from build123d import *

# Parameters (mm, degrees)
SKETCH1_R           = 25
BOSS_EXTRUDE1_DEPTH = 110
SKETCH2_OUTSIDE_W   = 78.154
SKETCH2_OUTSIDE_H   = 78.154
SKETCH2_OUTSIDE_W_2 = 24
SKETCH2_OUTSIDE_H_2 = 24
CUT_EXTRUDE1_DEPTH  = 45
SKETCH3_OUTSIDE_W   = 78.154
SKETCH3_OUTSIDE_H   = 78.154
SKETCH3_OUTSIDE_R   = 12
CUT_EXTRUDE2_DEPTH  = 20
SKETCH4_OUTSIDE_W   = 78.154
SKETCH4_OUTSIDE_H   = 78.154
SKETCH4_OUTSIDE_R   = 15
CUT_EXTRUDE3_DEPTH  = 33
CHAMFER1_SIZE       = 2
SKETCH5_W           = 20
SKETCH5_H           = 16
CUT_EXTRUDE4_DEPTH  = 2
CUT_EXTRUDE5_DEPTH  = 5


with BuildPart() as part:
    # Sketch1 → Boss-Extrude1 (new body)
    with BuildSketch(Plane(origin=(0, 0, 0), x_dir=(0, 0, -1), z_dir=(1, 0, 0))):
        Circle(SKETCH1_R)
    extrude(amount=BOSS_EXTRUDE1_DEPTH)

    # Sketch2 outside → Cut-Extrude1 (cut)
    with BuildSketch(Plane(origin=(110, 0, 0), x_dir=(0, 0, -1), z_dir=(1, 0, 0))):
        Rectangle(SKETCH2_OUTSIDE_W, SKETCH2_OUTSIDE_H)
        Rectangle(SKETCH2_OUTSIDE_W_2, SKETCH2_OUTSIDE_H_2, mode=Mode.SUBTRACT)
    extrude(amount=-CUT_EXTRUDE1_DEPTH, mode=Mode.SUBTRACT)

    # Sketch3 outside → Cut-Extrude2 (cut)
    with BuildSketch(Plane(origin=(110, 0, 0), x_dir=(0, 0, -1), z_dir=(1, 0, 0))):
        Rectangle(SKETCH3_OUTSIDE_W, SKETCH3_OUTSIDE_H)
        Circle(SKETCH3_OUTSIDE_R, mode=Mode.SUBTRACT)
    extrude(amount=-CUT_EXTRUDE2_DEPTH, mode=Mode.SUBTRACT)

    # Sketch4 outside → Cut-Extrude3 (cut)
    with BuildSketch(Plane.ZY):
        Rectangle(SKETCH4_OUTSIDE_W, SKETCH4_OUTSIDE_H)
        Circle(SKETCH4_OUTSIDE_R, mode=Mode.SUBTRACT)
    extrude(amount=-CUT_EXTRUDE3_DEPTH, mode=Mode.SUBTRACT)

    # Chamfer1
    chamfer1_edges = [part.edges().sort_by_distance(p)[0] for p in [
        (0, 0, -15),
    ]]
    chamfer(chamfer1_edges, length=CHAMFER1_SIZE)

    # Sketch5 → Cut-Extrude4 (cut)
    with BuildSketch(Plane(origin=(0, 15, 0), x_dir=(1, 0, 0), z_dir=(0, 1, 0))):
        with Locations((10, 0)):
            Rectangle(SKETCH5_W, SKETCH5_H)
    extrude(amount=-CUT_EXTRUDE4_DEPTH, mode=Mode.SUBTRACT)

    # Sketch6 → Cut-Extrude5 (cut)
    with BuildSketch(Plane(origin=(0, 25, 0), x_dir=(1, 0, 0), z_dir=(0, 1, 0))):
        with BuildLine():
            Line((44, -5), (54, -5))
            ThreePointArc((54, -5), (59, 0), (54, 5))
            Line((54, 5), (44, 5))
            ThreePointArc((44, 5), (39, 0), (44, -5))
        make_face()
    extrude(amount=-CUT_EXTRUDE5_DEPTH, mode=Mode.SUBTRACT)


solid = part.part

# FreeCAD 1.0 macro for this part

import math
import FreeCAD as App
import Part
import Sketcher
from FreeCAD import Vector
Q = App.Units.Quantity


def edges_at(feature, points):
    """Names of the edges that pass closest to the given points."""
    edges = feature.Shape.Edges
    near = lambda p: min(range(len(edges)), key=lambda i: edges[i].distToShape(Part.Vertex(*p))[0])
    return sorted({f"Edge{near(p) + 1}" for p in points})

doc = App.newDocument("Part")
params = doc.addObject("Spreadsheet::Sheet", "Params")
for row, (alias, value) in enumerate([
    ("sketch1_diameter", "50 mm"),
    ("pad1_length", "110 mm"),
    ("sketch2_width", "24 mm"),
    ("pocket1_length", "45 mm"),
    ("sketch3_diameter", "24 mm"),
    ("pocket2_length", "20 mm"),
    ("sketch4_diameter", "30 mm"),
    ("pocket3_length", "33 mm"),
    ("chamfer_size", "2 mm"),
    ("sketch5_width", "20 mm"),
    ("sketch5_height", "16 mm"),
    ("pocket4_length", "2 mm"),
    ("sketch6_radius", "5 mm"),
    ("sketch6_width", "10 mm"),
    ("pocket5_length", "5 mm"),
], start=1):
    params.set(f"A{row}", alias)
    params.set(f"B{row}", "=" + value)
    params.setAlias(f"B{row}", alias)

body = doc.addObject("PartDesign::Body", "Body")

sketch1 = body.newObject("Sketcher::SketchObject", "Sketch")
sketch1.AttachmentSupport = (doc.getObject("YZ_Plane"), [""])
sketch1.MapMode = "FlatFace"
sketch1.addGeometry(Part.Circle(Vector(0, 0, 0), Vector(0, 0, 1), 25), False)
sketch1.addConstraint(Sketcher.Constraint("Coincident", 0, 3, -1, 1))
sketch1.addConstraint(Sketcher.Constraint("Diameter", 0, Q("50 mm")))
sketch1.setExpression("Constraints[1]", "Params.sketch1_diameter")
pad1 = body.newObject("PartDesign::Pad", "Pad")
pad1.Profile = sketch1
pad1.setExpression("Length", "Params.pad1_length")

sketch2 = body.newObject("Sketcher::SketchObject", "Sketch001")
sketch2.AttachmentSupport = (doc.getObject("YZ_Plane"), [""])
sketch2.MapMode = "FlatFace"
sketch2.AttachmentOffset = App.Placement(Vector(0, 0, 110), App.Rotation())
sketch2.addGeometry(Part.LineSegment(Vector(39, 39, 0), Vector(-39, 39, 0)), False)
sketch2.addGeometry(Part.LineSegment(Vector(-39, 39, 0), Vector(-39, -39, 0)), False)
sketch2.addGeometry(Part.LineSegment(Vector(-39, -39, 0), Vector(39, -39, 0)), False)
sketch2.addGeometry(Part.LineSegment(Vector(39, -39, 0), Vector(39, 39, 0)), False)
sketch2.addGeometry(Part.LineSegment(Vector(-12, -12, 0), Vector(-12, 12, 0)), False)
sketch2.addGeometry(Part.LineSegment(Vector(-12, 12, 0), Vector(12, 12, 0)), False)
sketch2.addGeometry(Part.LineSegment(Vector(12, 12, 0), Vector(12, -12, 0)), False)
sketch2.addGeometry(Part.LineSegment(Vector(12, -12, 0), Vector(-12, -12, 0)), False)
sketch2.addConstraint(Sketcher.Constraint("Coincident", 0, 2, 1, 1))
sketch2.addConstraint(Sketcher.Constraint("Coincident", 1, 2, 2, 1))
sketch2.addConstraint(Sketcher.Constraint("Coincident", 2, 2, 3, 1))
sketch2.addConstraint(Sketcher.Constraint("Coincident", 3, 2, 0, 1))
sketch2.addConstraint(Sketcher.Constraint("Coincident", 4, 2, 5, 1))
sketch2.addConstraint(Sketcher.Constraint("Coincident", 5, 2, 6, 1))
sketch2.addConstraint(Sketcher.Constraint("Coincident", 6, 2, 7, 1))
sketch2.addConstraint(Sketcher.Constraint("Coincident", 7, 2, 4, 1))
sketch2.addConstraint(Sketcher.Constraint("Horizontal", 0))
sketch2.addConstraint(Sketcher.Constraint("Vertical", 1))
sketch2.addConstraint(Sketcher.Constraint("Horizontal", 2))
sketch2.addConstraint(Sketcher.Constraint("Vertical", 3))
sketch2.addConstraint(Sketcher.Constraint("Vertical", 4))
sketch2.addConstraint(Sketcher.Constraint("Horizontal", 5))
sketch2.addConstraint(Sketcher.Constraint("Vertical", 6))
sketch2.addConstraint(Sketcher.Constraint("Horizontal", 7))
sketch2.addConstraint(Sketcher.Constraint("Symmetric", 0, 2, 2, 2, -1, 1))
sketch2.addConstraint(Sketcher.Constraint("Symmetric", 4, 2, 6, 2, -1, 1))
sketch2.addConstraint(Sketcher.Constraint("Equal", 2, 1))
sketch2.addConstraint(Sketcher.Constraint("Equal", 7, 4))
sketch2.addConstraint(Sketcher.Constraint("DistanceX", 5, 1, 5, 2, Q("24 mm")))
sketch2.addConstraint(Sketcher.Constraint("DistanceX", 0, 2, 0, 1, Q("78.154 mm")))
sketch2.setExpression("Constraints[20]", "Params.sketch2_width")
pocket1 = body.newObject("PartDesign::Pocket", "Pocket")
pocket1.Profile = sketch2
pocket1.setExpression("Length", "Params.pocket1_length")

sketch3 = body.newObject("Sketcher::SketchObject", "Sketch002")
sketch3.AttachmentSupport = (doc.getObject("YZ_Plane"), [""])
sketch3.MapMode = "FlatFace"
sketch3.AttachmentOffset = App.Placement(Vector(0, 0, 110), App.Rotation())
sketch3.addGeometry(Part.LineSegment(Vector(39, 39, 0), Vector(-39, 39, 0)), False)
sketch3.addGeometry(Part.LineSegment(Vector(-39, 39, 0), Vector(-39, -39, 0)), False)
sketch3.addGeometry(Part.LineSegment(Vector(-39, -39, 0), Vector(39, -39, 0)), False)
sketch3.addGeometry(Part.LineSegment(Vector(39, -39, 0), Vector(39, 39, 0)), False)
sketch3.addGeometry(Part.Circle(Vector(0, 0, 0), Vector(0, 0, 1), 12), False)
sketch3.addConstraint(Sketcher.Constraint("Coincident", 0, 2, 1, 1))
sketch3.addConstraint(Sketcher.Constraint("Coincident", 1, 2, 2, 1))
sketch3.addConstraint(Sketcher.Constraint("Coincident", 2, 2, 3, 1))
sketch3.addConstraint(Sketcher.Constraint("Coincident", 3, 2, 0, 1))
sketch3.addConstraint(Sketcher.Constraint("Horizontal", 0))
sketch3.addConstraint(Sketcher.Constraint("Vertical", 1))
sketch3.addConstraint(Sketcher.Constraint("Horizontal", 2))
sketch3.addConstraint(Sketcher.Constraint("Vertical", 3))
sketch3.addConstraint(Sketcher.Constraint("Coincident", 4, 3, -1, 1))
sketch3.addConstraint(Sketcher.Constraint("Symmetric", 0, 2, 2, 2, -1, 1))
sketch3.addConstraint(Sketcher.Constraint("Equal", 2, 1))
sketch3.addConstraint(Sketcher.Constraint("Diameter", 4, Q("24 mm")))
sketch3.addConstraint(Sketcher.Constraint("DistanceX", 0, 2, 0, 1, Q("78.154 mm")))
sketch3.setExpression("Constraints[11]", "Params.sketch3_diameter")
pocket2 = body.newObject("PartDesign::Pocket", "Pocket001")
pocket2.Profile = sketch3
pocket2.setExpression("Length", "Params.pocket2_length")

sketch4 = body.newObject("Sketcher::SketchObject", "Sketch003")
sketch4.AttachmentSupport = (doc.getObject("YZ_Plane"), [""])
sketch4.MapMode = "FlatFace"
sketch4.addGeometry(Part.LineSegment(Vector(39, -39, 0), Vector(-39, -39, 0)), False)
sketch4.addGeometry(Part.LineSegment(Vector(-39, -39, 0), Vector(-39, 39, 0)), False)
sketch4.addGeometry(Part.LineSegment(Vector(-39, 39, 0), Vector(39, 39, 0)), False)
sketch4.addGeometry(Part.LineSegment(Vector(39, 39, 0), Vector(39, -39, 0)), False)
sketch4.addGeometry(Part.Circle(Vector(0, 0, 0), Vector(0, 0, 1), 15), False)
sketch4.addConstraint(Sketcher.Constraint("Coincident", 0, 2, 1, 1))
sketch4.addConstraint(Sketcher.Constraint("Coincident", 1, 2, 2, 1))
sketch4.addConstraint(Sketcher.Constraint("Coincident", 2, 2, 3, 1))
sketch4.addConstraint(Sketcher.Constraint("Coincident", 3, 2, 0, 1))
sketch4.addConstraint(Sketcher.Constraint("Horizontal", 0))
sketch4.addConstraint(Sketcher.Constraint("Vertical", 1))
sketch4.addConstraint(Sketcher.Constraint("Horizontal", 2))
sketch4.addConstraint(Sketcher.Constraint("Vertical", 3))
sketch4.addConstraint(Sketcher.Constraint("Coincident", 4, 3, -1, 1))
sketch4.addConstraint(Sketcher.Constraint("Symmetric", 0, 2, 2, 2, -1, 1))
sketch4.addConstraint(Sketcher.Constraint("Equal", 2, 1))
sketch4.addConstraint(Sketcher.Constraint("Diameter", 4, Q("30 mm")))
sketch4.addConstraint(Sketcher.Constraint("DistanceX", 0, 2, 0, 1, Q("78.154 mm")))
sketch4.setExpression("Constraints[11]", "Params.sketch4_diameter")
pocket3 = body.newObject("PartDesign::Pocket", "Pocket002")
pocket3.Profile = sketch4
pocket3.setExpression("Length", "Params.pocket3_length")
pocket3.Reversed = True
doc.recompute()

chamfer = body.newObject("PartDesign::Chamfer", "Chamfer")
chamfer.Base = (pocket3, edges_at(pocket3, [(0, 0, -15)]))
chamfer.setExpression("Size", "Params.chamfer_size")

sketch5 = body.newObject("Sketcher::SketchObject", "Sketch004")
sketch5.AttachmentSupport = (doc.getObject("XZ_Plane"), [""])
sketch5.MapMode = "FlatFace"
sketch5.AttachmentOffset = App.Placement(Vector(0, 0, -15), App.Rotation())
sketch5.addGeometry(Part.LineSegment(Vector(0, -8, 0), Vector(0, 8, 0)), False)
sketch5.addGeometry(Part.LineSegment(Vector(0, 8, 0), Vector(20, 8, 0)), False)
sketch5.addGeometry(Part.LineSegment(Vector(20, 8, 0), Vector(20, -8, 0)), False)
sketch5.addGeometry(Part.LineSegment(Vector(20, -8, 0), Vector(0, -8, 0)), False)
sketch5.addConstraint(Sketcher.Constraint("Coincident", 0, 2, 1, 1))
sketch5.addConstraint(Sketcher.Constraint("Coincident", 1, 2, 2, 1))
sketch5.addConstraint(Sketcher.Constraint("Coincident", 2, 2, 3, 1))
sketch5.addConstraint(Sketcher.Constraint("Coincident", 3, 2, 0, 1))
sketch5.addConstraint(Sketcher.Constraint("Vertical", 0))
sketch5.addConstraint(Sketcher.Constraint("Horizontal", 1))
sketch5.addConstraint(Sketcher.Constraint("Vertical", 2))
sketch5.addConstraint(Sketcher.Constraint("Horizontal", 3))
sketch5.addConstraint(Sketcher.Constraint("Symmetric", 0, 2, 3, 2, -1, 1))
sketch5.addConstraint(Sketcher.Constraint("DistanceX", 1, 1, 1, 2, Q("20 mm")))
sketch5.addConstraint(Sketcher.Constraint("DistanceY", 0, 1, 0, 2, Q("16 mm")))
sketch5.setExpression("Constraints[9]", "Params.sketch5_width")
sketch5.setExpression("Constraints[10]", "Params.sketch5_height")
pocket4 = body.newObject("PartDesign::Pocket", "Pocket003")
pocket4.Profile = sketch5
pocket4.setExpression("Length", "Params.pocket4_length")
pocket4.Reversed = True

sketch6 = body.newObject("Sketcher::SketchObject", "Sketch005")
sketch6.AttachmentSupport = (doc.getObject("XZ_Plane"), [""])
sketch6.MapMode = "FlatFace"
sketch6.AttachmentOffset = App.Placement(Vector(0, 0, -25), App.Rotation())
sketch6.addGeometry(Part.LineSegment(Vector(44, 5, 0), Vector(54, 5, 0)), False)
sketch6.addGeometry(Part.ArcOfCircle(Part.Circle(Vector(54, 0, 0), Vector(0, 0, 1), 5), math.radians(-90), math.radians(90)), False)
sketch6.addGeometry(Part.LineSegment(Vector(54, -5, 0), Vector(44, -5, 0)), False)
sketch6.addGeometry(Part.ArcOfCircle(Part.Circle(Vector(44, 0, 0), Vector(0, 0, 1), 5), math.radians(90), math.radians(270)), False)
sketch6.addConstraint(Sketcher.Constraint("Tangent", 0, 2, 1, 2))
sketch6.addConstraint(Sketcher.Constraint("Tangent", 1, 1, 2, 1))
sketch6.addConstraint(Sketcher.Constraint("Tangent", 2, 2, 3, 2))
sketch6.addConstraint(Sketcher.Constraint("Tangent", 3, 1, 0, 1))
sketch6.addConstraint(Sketcher.Constraint("Horizontal", 0))
sketch6.addConstraint(Sketcher.Constraint("Horizontal", 2))
sketch6.addConstraint(Sketcher.Constraint("PointOnObject", 1, 3, -1))
sketch6.addConstraint(Sketcher.Constraint("Radius", 1, Q("5 mm")))
sketch6.addConstraint(Sketcher.Constraint("DistanceX", 0, 1, 0, 2, Q("10 mm")))
sketch6.addConstraint(Sketcher.Constraint("DistanceX", -1, 1, 1, 3, Q("54 mm")))
sketch6.setExpression("Constraints[7]", "Params.sketch6_radius")
sketch6.setExpression("Constraints[8]", "Params.sketch6_width")
pocket5 = body.newObject("PartDesign::Pocket", "Pocket004")
pocket5.Profile = sketch6
pocket5.setExpression("Length", "Params.pocket5_length")
pocket5.Reversed = True

doc.recompute()
